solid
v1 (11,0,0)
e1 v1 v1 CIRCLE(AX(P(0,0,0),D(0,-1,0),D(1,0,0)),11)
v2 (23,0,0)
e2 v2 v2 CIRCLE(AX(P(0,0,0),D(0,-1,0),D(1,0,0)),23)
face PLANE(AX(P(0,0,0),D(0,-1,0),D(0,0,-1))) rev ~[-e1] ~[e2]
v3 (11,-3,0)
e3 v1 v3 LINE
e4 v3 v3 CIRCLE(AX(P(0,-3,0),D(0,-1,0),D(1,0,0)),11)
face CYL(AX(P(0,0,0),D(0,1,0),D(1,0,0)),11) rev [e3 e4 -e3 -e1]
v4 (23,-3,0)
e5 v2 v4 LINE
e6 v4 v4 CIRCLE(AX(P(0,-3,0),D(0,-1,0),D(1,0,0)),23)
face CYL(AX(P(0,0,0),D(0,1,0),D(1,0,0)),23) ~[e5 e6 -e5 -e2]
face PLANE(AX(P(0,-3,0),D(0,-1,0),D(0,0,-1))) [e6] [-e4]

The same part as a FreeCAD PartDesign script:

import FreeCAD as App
import Part
import Sketcher
from FreeCAD import Vector
Q = App.Units.Quantity

doc = App.newDocument("Part")
body = doc.addObject("PartDesign::Body", "Body")

sketch1 = body.newObject("Sketcher::SketchObject", "Sketch")
sketch1.AttachmentSupport = (doc.getObject("XZ_Plane"), [""])
sketch1.MapMode = "FlatFace"
sketch1.addGeometry(Part.Circle(Vector(0, 0, 0), Vector(0, 0, 1), 23), False)
sketch1.addGeometry(Part.Circle(Vector(0, 0, 0), Vector(0, 0, 1), 11), False)
sketch1.addConstraint(Sketcher.Constraint("Coincident", 0, 3, -1, 1))
sketch1.addConstraint(Sketcher.Constraint("Coincident", 1, 3, -1, 1))
sketch1.addConstraint(Sketcher.Constraint("Diameter", 0, Q("46 mm")))
sketch1.addConstraint(Sketcher.Constraint("Diameter", 1, Q("22 mm")))
pad1 = body.newObject("PartDesign::Pad", "Pad")
pad1.Profile = sketch1
pad1.Length = 3

doc.recompute()
